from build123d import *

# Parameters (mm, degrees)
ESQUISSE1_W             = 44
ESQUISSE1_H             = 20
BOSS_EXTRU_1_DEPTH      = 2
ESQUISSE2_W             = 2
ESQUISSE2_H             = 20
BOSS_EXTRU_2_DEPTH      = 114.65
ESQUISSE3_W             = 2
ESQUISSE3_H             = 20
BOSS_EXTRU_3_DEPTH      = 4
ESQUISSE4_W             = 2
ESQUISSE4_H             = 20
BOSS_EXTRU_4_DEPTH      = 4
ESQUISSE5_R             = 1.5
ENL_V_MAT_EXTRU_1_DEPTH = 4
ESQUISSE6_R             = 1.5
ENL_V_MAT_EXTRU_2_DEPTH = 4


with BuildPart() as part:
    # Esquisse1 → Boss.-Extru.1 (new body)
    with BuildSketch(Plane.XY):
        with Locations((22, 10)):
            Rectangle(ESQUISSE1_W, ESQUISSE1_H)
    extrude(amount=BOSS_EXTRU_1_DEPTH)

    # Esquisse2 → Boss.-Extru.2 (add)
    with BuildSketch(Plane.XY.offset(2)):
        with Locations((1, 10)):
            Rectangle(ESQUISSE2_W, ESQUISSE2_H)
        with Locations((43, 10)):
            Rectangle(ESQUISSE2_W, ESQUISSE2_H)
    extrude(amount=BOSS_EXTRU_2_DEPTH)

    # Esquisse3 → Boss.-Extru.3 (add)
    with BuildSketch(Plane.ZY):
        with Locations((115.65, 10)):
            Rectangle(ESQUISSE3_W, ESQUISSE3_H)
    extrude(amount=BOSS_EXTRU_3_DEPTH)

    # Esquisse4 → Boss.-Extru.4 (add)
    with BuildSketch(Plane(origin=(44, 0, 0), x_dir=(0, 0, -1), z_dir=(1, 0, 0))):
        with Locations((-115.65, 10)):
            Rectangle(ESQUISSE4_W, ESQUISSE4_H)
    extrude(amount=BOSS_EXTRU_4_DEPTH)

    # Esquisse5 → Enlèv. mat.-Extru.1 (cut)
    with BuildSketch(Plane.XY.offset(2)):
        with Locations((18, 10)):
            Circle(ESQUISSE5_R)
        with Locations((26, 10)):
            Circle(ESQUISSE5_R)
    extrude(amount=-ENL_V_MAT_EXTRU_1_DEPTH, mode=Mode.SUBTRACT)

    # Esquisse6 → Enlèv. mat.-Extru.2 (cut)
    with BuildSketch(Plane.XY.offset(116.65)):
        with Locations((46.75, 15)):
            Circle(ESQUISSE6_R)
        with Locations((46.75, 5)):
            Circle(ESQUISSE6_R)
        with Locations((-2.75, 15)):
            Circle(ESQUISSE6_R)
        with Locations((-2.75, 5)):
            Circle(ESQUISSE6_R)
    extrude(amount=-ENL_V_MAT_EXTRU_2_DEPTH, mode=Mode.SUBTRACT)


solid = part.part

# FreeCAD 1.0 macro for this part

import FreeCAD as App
import Part
import Sketcher
Q = App.Units.Quantity


def add_polygon(sketch, points):
    """Adds a closed chain of lines whose ends are joined by coincident constraints."""
    first, n = sketch.GeometryCount, len(points)
    for a, b in zip(points, points[1:] + points[:1]):
        sketch.addGeometry(Part.LineSegment(App.Vector(*a, 0), App.Vector(*b, 0)), False)
    for i in range(n):
        sketch.addConstraint(Sketcher.Constraint("Coincident", first + i, 2, first + (i + 1) % n, 1))

doc = App.newDocument("Part")
body = doc.addObject("PartDesign::Body", "Body")

sketch1 = body.newObject("Sketcher::SketchObject", "Sketch")
sketch1.AttachmentSupport = (doc.getObject("XY_Plane"), [""])
sketch1.MapMode = "FlatFace"
add_polygon(sketch1, [(0, 20), (0, 0), (44, 0), (44, 20)])
sketch1.addConstraint([
    Sketcher.Constraint("Vertical", 0),
    Sketcher.Constraint("Horizontal", 1),
    Sketcher.Constraint("Vertical", 2),
    Sketcher.Constraint("Horizontal", 3),
    Sketcher.Constraint("Coincident", 0, 2, -1, 1),
    Sketcher.Constraint("DistanceX", 1, 1, 1, 2, Q("44 mm")),
    Sketcher.Constraint("DistanceY", 0, 2, 0, 1, Q("20 mm")),
])
pad1 = body.newObject("PartDesign::Pad", "Pad")
pad1.Profile = sketch1
pad1.Length = 2

sketch2 = body.newObject("Sketcher::SketchObject", "Sketch001")
sketch2.AttachmentSupport = (doc.getObject("XY_Plane"), [""])
sketch2.MapMode = "FlatFace"
sketch2.AttachmentOffset = App.Placement(App.Vector(0, 0, 2), App.Rotation())
add_polygon(sketch2, [(0, 20), (0, 0), (2, 0), (2, 20)])
add_polygon(sketch2, [(42, 20), (42, 0), (44, 0), (44, 20)])
sketch2.addConstraint([
    Sketcher.Constraint("Vertical", 0),
    Sketcher.Constraint("Horizontal", 1),
    Sketcher.Constraint("Vertical", 2),
    Sketcher.Constraint("Horizontal", 3),
    Sketcher.Constraint("Vertical", 4),
    Sketcher.Constraint("Horizontal", 5),
    Sketcher.Constraint("Vertical", 6),
    Sketcher.Constraint("Horizontal", 7),
    Sketcher.Constraint("Coincident", 0, 2, -1, 1),
    Sketcher.Constraint("PointOnObject", 4, 2, -1),
    Sketcher.Constraint("Horizontal", 3, 2, 6, 2),
    Sketcher.Constraint("Equal", 3, 5),
    Sketcher.Constraint("DistanceX", 1, 1, 1, 2, Q("2 mm")),
    Sketcher.Constraint("DistanceY", 0, 2, 0, 1, Q("20 mm")),
    Sketcher.Constraint("DistanceX", -1, 1, 4, 2, Q("42 mm")),
])
pad2 = body.newObject("PartDesign::Pad", "Pad001")
pad2.Profile = sketch2
pad2.Length = 114.65

sketch3 = body.newObject("Sketcher::SketchObject", "Sketch002")
sketch3.AttachmentSupport = (doc.getObject("YZ_Plane"), [""])
sketch3.MapMode = "FlatFace"
add_polygon(sketch3, [(20, 114.7), (0, 114.7), (0, 116.7), (20, 116.7)])
sketch3.addConstraint([
    Sketcher.Constraint("Horizontal", 0),
    Sketcher.Constraint("Vertical", 1),
    Sketcher.Constraint("Horizontal", 2),
    Sketcher.Constraint("Vertical", 3),
    Sketcher.Constraint("PointOnObject", 0, 2, -2),
    Sketcher.Constraint("DistanceX", 0, 2, 0, 1, Q("20 mm")),
    Sketcher.Constraint("DistanceY", 1, 1, 1, 2, Q("2 mm")),
    Sketcher.Constraint("DistanceY", -1, 1, 0, 2, Q("114.65 mm")),
])
pad3 = body.newObject("PartDesign::Pad", "Pad002")
pad3.Profile = sketch3
pad3.Length = 4
pad3.Reversed = True

sketch4 = body.newObject("Sketcher::SketchObject", "Sketch003")
sketch4.AttachmentSupport = (doc.getObject("YZ_Plane"), [""])
sketch4.MapMode = "FlatFace"
sketch4.AttachmentOffset = App.Placement(App.Vector(0, 0, 44), App.Rotation())
add_polygon(sketch4, [(20, 116.7), (0, 116.7), (0, 114.7), (20, 114.7)])
sketch4.addConstraint([
    Sketcher.Constraint("Horizontal", 0),
    Sketcher.Constraint("Vertical", 1),
    Sketcher.Constraint("Horizontal", 2),
    Sketcher.Constraint("Vertical", 3),
    Sketcher.Constraint("PointOnObject", 0, 2, -2),
    Sketcher.Constraint("DistanceX", 0, 2, 0, 1, Q("20 mm")),
    Sketcher.Constraint("DistanceY", 1, 2, 1, 1, Q("2 mm")),
    Sketcher.Constraint("DistanceY", -1, 1, 0, 2, Q("116.65 mm")),
])
pad4 = body.newObject("PartDesign::Pad", "Pad003")
pad4.Profile = sketch4
pad4.Length = 4

sketch5 = body.newObject("Sketcher::SketchObject", "Sketch004")
sketch5.AttachmentSupport = (doc.getObject("XY_Plane"), [""])
sketch5.MapMode = "FlatFace"
sketch5.AttachmentOffset = App.Placement(App.Vector(0, 0, 2), App.Rotation())
sketch5.addGeometry([
    Part.Circle(App.Vector(18, 10, 0), App.Vector(0, 0, 1), 1.5),
    Part.Circle(App.Vector(26, 10, 0), App.Vector(0, 0, 1), 1.5),
], False)
sketch5.addConstraint([
    Sketcher.Constraint("Equal", 0, 1),
    Sketcher.Constraint("Horizontal", 0, 3, 1, 3),
    Sketcher.Constraint("Diameter", 0, Q("3 mm")),
    Sketcher.Constraint("DistanceX", -1, 1, 0, 3, Q("18 mm")),
    Sketcher.Constraint("DistanceY", -1, 1, 0, 3, Q("10 mm")),
    Sketcher.Constraint("DistanceX", -1, 1, 1, 3, Q("26 mm")),
])
pocket1 = body.newObject("PartDesign::Pocket", "Pocket")
pocket1.Profile = sketch5
pocket1.Length = 4

sketch6 = body.newObject("Sketcher::SketchObject", "Sketch005")
sketch6.AttachmentSupport = (doc.getObject("XY_Plane"), [""])
sketch6.MapMode = "FlatFace"
sketch6.AttachmentOffset = App.Placement(App.Vector(0, 0, 116.65), App.Rotation())
sketch6.addGeometry([
    Part.Circle(App.Vector(46.8, 15, 0), App.Vector(0, 0, 1), 1.5),
    Part.Circle(App.Vector(46.8, 5, 0), App.Vector(0, 0, 1), 1.5),
    Part.Circle(App.Vector(-2.8, 15, 0), App.Vector(0, 0, 1), 1.5),
    Part.Circle(App.Vector(-2.8, 5, 0), App.Vector(0, 0, 1), 1.5),
], False)
sketch6.addConstraint([
    Sketcher.Constraint("Equal", 0, 1),
    Sketcher.Constraint("Equal", 1, 2),
    Sketcher.Constraint("Equal", 2, 3),
    Sketcher.Constraint("Horizontal", 0, 3, 2, 3),
    Sketcher.Constraint("Horizontal", 1, 3, 3, 3),
    Sketcher.Constraint("Vertical", 0, 3, 1, 3),
    Sketcher.Constraint("Vertical", 2, 3, 3, 3),
    Sketcher.Constraint("Diameter", 0, Q("3 mm")),
    Sketcher.Constraint("DistanceY", -1, 1, 0, 3, Q("15 mm")),
    Sketcher.Constraint("DistanceY", -1, 1, 1, 3, Q("5 mm")),
    Sketcher.Constraint("DistanceX", 2, 3, 0, 3, Q("49.5 mm")),
    Sketcher.Constraint("DistanceX", -1, 1, 0, 3, Q("46.75 mm")),
])
pocket2 = body.newObject("PartDesign::Pocket", "Pocket001")
pocket2.Profile = sketch6
pocket2.Length = 4

doc.recompute()
